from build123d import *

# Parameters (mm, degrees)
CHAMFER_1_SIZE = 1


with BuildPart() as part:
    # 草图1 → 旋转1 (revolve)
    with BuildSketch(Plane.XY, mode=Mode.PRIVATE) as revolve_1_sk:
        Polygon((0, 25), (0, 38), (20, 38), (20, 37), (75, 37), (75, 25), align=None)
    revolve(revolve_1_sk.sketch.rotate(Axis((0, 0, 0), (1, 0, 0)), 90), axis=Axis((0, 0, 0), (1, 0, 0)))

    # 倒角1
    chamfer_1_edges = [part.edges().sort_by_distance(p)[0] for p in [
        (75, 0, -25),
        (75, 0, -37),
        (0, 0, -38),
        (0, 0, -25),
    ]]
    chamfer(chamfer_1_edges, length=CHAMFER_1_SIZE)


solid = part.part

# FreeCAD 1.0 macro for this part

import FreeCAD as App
import Part
import Sketcher


def edges_at(feature, points):
    """Names of the edges that pass closest to the given points."""
    edges = feature.Shape.Edges
    near = lambda p: min(range(len(edges)), key=lambda i: edges[i].distToShape(Part.Vertex(*p))[0])
    return sorted({f"Edge{near(p) + 1}" for p in points})


def add_polygon(sketch, points):
    """Adds a closed chain of lines whose ends are joined by coincident constraints."""
    first, n = sketch.GeometryCount, len(points)
    for a, b in zip(points, points[1:] + points[:1]):
        sketch.addGeometry(Part.LineSegment(App.Vector(*a, 0), App.Vector(*b, 0)), False)
    for i in range(n):
        sketch.addConstraint(Sketcher.Constraint("Coincident", first + i, 2, first + (i + 1) % n, 1))

doc = App.newDocument("Part")
params = doc.addObject("Spreadsheet::Sheet", "Params")
for row, (alias, value) in enumerate([
    ("sketch1_width", "75 mm"),
    ("sketch1_width2", "55 mm"),
    ("sketch1_height", "13 mm"),
    ("sketch1_height2", "12 mm"),
    ("revolution_angle", "360 deg"),
    ("chamfer_size", "1 mm"),
], start=1):
    params.set(f"A{row}", alias)
    params.set(f"B{row}", "=" + value)
    params.setAlias(f"B{row}", alias)

body = doc.addObject("PartDesign::Body", "Body")

# Sketch on XY plane
sketch1 = doc.addObject("Sketcher::SketchObject", "Sketch")
body.addObject(sketch1)
sketch1.AttachmentSupport = (doc.XY_Plane, [""])
sketch1.MapMode = "FlatFace"
add_polygon(sketch1, [(0, 38), (0, 25), (75, 25), (75, 37), (20, 37), (20, 38)])  # lines 0-5
sketch1.addConstraint([
    Sketcher.Constraint("Vertical", 0),
    Sketcher.Constraint("Horizontal", 1),
    Sketcher.Constraint("Vertical", 2),
    Sketcher.Constraint("Horizontal", 3),
    Sketcher.Constraint("Vertical", 4),
    Sketcher.Constraint("Horizontal", 5),
    Sketcher.Constraint("PointOnObject", 0, 2, -2),
    Sketcher.Constraint("DistanceX", 1, 1, 1, 2, 75.0),
    Sketcher.Constraint("DistanceX", 3, 2, 3, 1, 55.0),
    Sketcher.Constraint("DistanceY", 0, 2, 0, 1, 13.0),
    Sketcher.Constraint("DistanceY", 2, 1, 2, 2, 12.0),
    Sketcher.Constraint("DistanceY", -1, 1, 0, 2, 25.0),
])
sketch1.setExpression("Constraints[13]", "Params.sketch1_width")
sketch1.setExpression("Constraints[14]", "Params.sketch1_width2")
sketch1.setExpression("Constraints[15]", "Params.sketch1_height")
sketch1.setExpression("Constraints[16]", "Params.sketch1_height2")
revolution = doc.addObject("PartDesign::Revolution", "Revolution")
body.addObject(revolution)
revolution.Profile = sketch1
revolution.ReferenceAxis = (sketch1, ["H_Axis"])
revolution.setExpression("Angle", "Params.revolution_angle")
doc.recompute()

chamfer = doc.addObject("PartDesign::Chamfer", "Chamfer")
body.addObject(chamfer)
chamfer.Base = (revolution, edges_at(revolution, [
    (75, 0, -25),
    (75, 0, -37),
    (0, 0, -38),
    (0, 0, -25),
]))
chamfer.setExpression("Size", "Params.chamfer_size")

doc.recompute()
